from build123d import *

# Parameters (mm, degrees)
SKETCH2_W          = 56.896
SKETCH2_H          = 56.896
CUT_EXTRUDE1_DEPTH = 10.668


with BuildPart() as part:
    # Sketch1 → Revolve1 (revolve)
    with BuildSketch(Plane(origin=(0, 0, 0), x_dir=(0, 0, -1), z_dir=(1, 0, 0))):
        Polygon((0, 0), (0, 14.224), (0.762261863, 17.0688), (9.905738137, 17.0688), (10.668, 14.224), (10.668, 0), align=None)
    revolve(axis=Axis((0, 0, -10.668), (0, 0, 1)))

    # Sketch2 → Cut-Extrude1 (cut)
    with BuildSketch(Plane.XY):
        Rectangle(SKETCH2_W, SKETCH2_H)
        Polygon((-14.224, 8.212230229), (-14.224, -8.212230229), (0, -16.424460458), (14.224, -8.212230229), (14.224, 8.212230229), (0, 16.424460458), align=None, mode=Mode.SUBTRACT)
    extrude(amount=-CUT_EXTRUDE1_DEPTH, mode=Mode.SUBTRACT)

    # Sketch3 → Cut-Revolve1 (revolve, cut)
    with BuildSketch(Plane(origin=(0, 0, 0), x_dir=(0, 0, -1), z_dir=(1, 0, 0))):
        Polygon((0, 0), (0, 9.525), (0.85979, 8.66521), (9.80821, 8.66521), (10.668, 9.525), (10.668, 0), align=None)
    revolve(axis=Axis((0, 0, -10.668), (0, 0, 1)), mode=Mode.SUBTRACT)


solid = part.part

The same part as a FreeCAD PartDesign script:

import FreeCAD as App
import Part
import Sketcher

V = App.Vector
Q = App.Units.Quantity

doc = App.newDocument("Part")
params = doc.addObject("Spreadsheet::Sheet", "Params")
for row, (alias, value) in enumerate([
    ("sketch1_width", "0.56 in"),
    ("sketch1_height", "0.42 in"),
    ("revolution_angle", "360 deg"),
    ("sketch2_width", "2.24 in"),
    ("pocket1_length", "0.42 in"),
    ("sketch3_height", "0.42 in"),
    ("sketch3_width", "0.375 in"),
    ("groove_angle", "360 deg"),
], start=1):
    params.set(f"A{row}", alias)
    params.set(f"B{row}", "=" + value)
    params.setAlias(f"B{row}", alias)

body = doc.addObject("PartDesign::Body", "Body")

# Sketch on YZ plane
sketch1 = body.newObject("Sketcher::SketchObject", "Sketch")
sketch1.AttachmentSupport = (doc.getObject("YZ_Plane"), [""])
sketch1.MapMode = "FlatFace"
sketch1.addGeometry([
    Part.LineSegment(V(14.2, 0, 0), V(0, 0, 0)),  # 0
    Part.LineSegment(V(0, 0, 0), V(0, -10.7, 0)),  # 1
    Part.LineSegment(V(0, -10.7, 0), V(14.2, -10.7, 0)),  # 2
    Part.LineSegment(V(14.2, -10.7, 0), V(17.1, -9.9, 0)),  # 3
    Part.LineSegment(V(17.1, -9.9, 0), V(17.1, -0.8, 0)),  # 4
    Part.LineSegment(V(17.1, -0.8, 0), V(14.2, 0, 0)),  # 5
], False)
sketch1.addConstraint([
    Sketcher.Constraint("Coincident", 0, 2, 1, 1),
    Sketcher.Constraint("Coincident", 1, 2, 2, 1),
    Sketcher.Constraint("Coincident", 2, 2, 3, 1),
    Sketcher.Constraint("Coincident", 3, 2, 4, 1),
    Sketcher.Constraint("Coincident", 4, 2, 5, 1),
    Sketcher.Constraint("Coincident", 5, 2, 0, 1),
    Sketcher.Constraint("Horizontal", 0),
    Sketcher.Constraint("Vertical", 1),
    Sketcher.Constraint("Horizontal", 2),
    Sketcher.Constraint("Vertical", 4),
    Sketcher.Constraint("Coincident", 0, 2, -1, 1),
    Sketcher.Constraint("Vertical", 2, 2, 5, 2),
    Sketcher.Constraint("Equal", 3, 5),
    Sketcher.Constraint("Angle", 3, Q("15 deg")),
    Sketcher.Constraint("DistanceX", 0, 2, 0, 1, Q("0.56 in")),
    Sketcher.Constraint("DistanceY", 1, 2, 1, 1, Q("0.42 in")),
    Sketcher.Constraint("DistanceX", -1, 1, 3, 2, Q("0.672 in")),
])
sketch1.setExpression("Constraints[14]", "Params.sketch1_width")
sketch1.setExpression("Constraints[15]", "Params.sketch1_height")
revolution = body.newObject("PartDesign::Revolution", "Revolution")
revolution.Profile = sketch1
revolution.ReferenceAxis = (sketch1, ["V_Axis"])
revolution.setExpression("Angle", "Params.revolution_angle")

# Sketch on XY plane
sketch2 = body.newObject("Sketcher::SketchObject", "Sketch001")
sketch2.AttachmentSupport = (doc.getObject("XY_Plane"), [""])
sketch2.MapMode = "FlatFace"
sketch2.addGeometry([
    Part.LineSegment(V(-28, 28, 0), V(-28, -28, 0)),  # 0
    Part.LineSegment(V(-28, -28, 0), V(28, -28, 0)),  # 1
    Part.LineSegment(V(28, -28, 0), V(28, 28, 0)),  # 2
    Part.LineSegment(V(28, 28, 0), V(-28, 28, 0)),  # 3
    Part.LineSegment(V(-14, -8, 0), V(-14, 8, 0)),  # 4
    Part.LineSegment(V(-14, 8, 0), V(0, 16, 0)),  # 5
    Part.LineSegment(V(0, 16, 0), V(14, 8, 0)),  # 6
    Part.LineSegment(V(14, 8, 0), V(14, -8, 0)),  # 7
    Part.LineSegment(V(14, -8, 0), V(0, -16, 0)),  # 8
    Part.LineSegment(V(0, -16, 0), V(-14, -8, 0)),  # 9
], False)
sketch2.addConstraint([
    Sketcher.Constraint("Coincident", 0, 2, 1, 1),
    Sketcher.Constraint("Coincident", 1, 2, 2, 1),
    Sketcher.Constraint("Coincident", 2, 2, 3, 1),
    Sketcher.Constraint("Coincident", 3, 2, 0, 1),
    Sketcher.Constraint("Coincident", 4, 2, 5, 1),
    Sketcher.Constraint("Coincident", 5, 2, 6, 1),
    Sketcher.Constraint("Coincident", 6, 2, 7, 1),
    Sketcher.Constraint("Coincident", 7, 2, 8, 1),
    Sketcher.Constraint("Coincident", 8, 2, 9, 1),
    Sketcher.Constraint("Coincident", 9, 2, 4, 1),
    Sketcher.Constraint("Vertical", 0),
    Sketcher.Constraint("Horizontal", 1),
    Sketcher.Constraint("Vertical", 2),
    Sketcher.Constraint("Horizontal", 3),
    Sketcher.Constraint("Vertical", 4),
    Sketcher.Constraint("Vertical", 7),
    Sketcher.Constraint("Symmetric", 0, 2, 2, 2, -1, 1),
    Sketcher.Constraint("Symmetric", 4, 2, 7, 2, -1, 1),
    Sketcher.Constraint("Symmetric", 5, 2, 8, 2, -1, 1),
    Sketcher.Constraint("PointOnObject", 5, 2, -2),
    Sketcher.Constraint("Parallel", 6, 9),
    Sketcher.Constraint("Horizontal", 4, 2, 6, 2),
    Sketcher.Constraint("Equal", 3, 0),
    Sketcher.Constraint("Angle", 5, Q("30 deg")),
    Sketcher.Constraint("DistanceX", 1, 1, 1, 2, Q("2.24 in")),
    Sketcher.Constraint("DistanceX", 4, 2, -1, 1, Q("0.56 in")),
    Sketcher.Constraint("DistanceY", 4, 1, 4, 2, 16.42446),
])
sketch2.setExpression("Constraints[24]", "Params.sketch2_width")
pocket1 = body.newObject("PartDesign::Pocket", "Pocket")
pocket1.Profile = sketch2
pocket1.setExpression("Length", "Params.pocket1_length")

# Sketch on YZ plane
sketch3 = body.newObject("Sketcher::SketchObject", "Sketch002")
sketch3.AttachmentSupport = (doc.getObject("YZ_Plane"), [""])
sketch3.MapMode = "FlatFace"
sketch3.addGeometry([
    Part.LineSegment(V(9.5, 0, 0), V(0, 0, 0)),  # 0
    Part.LineSegment(V(0, 0, 0), V(0, -10.7, 0)),  # 1
    Part.LineSegment(V(0, -10.7, 0), V(9.5, -10.7, 0)),  # 2
    Part.LineSegment(V(9.5, -10.7, 0), V(8.7, -9.8, 0)),  # 3
    Part.LineSegment(V(8.7, -9.8, 0), V(8.7, -0.9, 0)),  # 4
    Part.LineSegment(V(8.7, -0.9, 0), V(9.5, 0, 0)),  # 5
], False)
sketch3.addConstraint([
    Sketcher.Constraint("Coincident", 0, 2, 1, 1),
    Sketcher.Constraint("Coincident", 1, 2, 2, 1),
    Sketcher.Constraint("Coincident", 2, 2, 3, 1),
    Sketcher.Constraint("Coincident", 3, 2, 4, 1),
    Sketcher.Constraint("Coincident", 4, 2, 5, 1),
    Sketcher.Constraint("Coincident", 5, 2, 0, 1),
    Sketcher.Constraint("Horizontal", 0),
    Sketcher.Constraint("Vertical", 1),
    Sketcher.Constraint("Horizontal", 2),
    Sketcher.Constraint("Vertical", 4),
    Sketcher.Constraint("Coincident", 0, 2, -1, 1),
    Sketcher.Constraint("Perpendicular", 3, 5),
    Sketcher.Constraint("Vertical", 2, 2, 5, 2),
    Sketcher.Constraint("Equal", 3, 5),
    Sketcher.Constraint("DistanceY", 1, 2, 1, 1, Q("0.42 in")),
    Sketcher.Constraint("DistanceX", 0, 2, 0, 1, Q("0.375 in")),
    Sketcher.Constraint("DistanceY", 4, 1, 4, 2, Q("0.3523 in")),
])
sketch3.setExpression("Constraints[14]", "Params.sketch3_height")
sketch3.setExpression("Constraints[15]", "Params.sketch3_width")
groove = body.newObject("PartDesign::Groove", "Groove")
groove.Profile = sketch3
groove.ReferenceAxis = (sketch3, ["V_Axis"])
groove.setExpression("Angle", "Params.groove_angle")

doc.recompute()
